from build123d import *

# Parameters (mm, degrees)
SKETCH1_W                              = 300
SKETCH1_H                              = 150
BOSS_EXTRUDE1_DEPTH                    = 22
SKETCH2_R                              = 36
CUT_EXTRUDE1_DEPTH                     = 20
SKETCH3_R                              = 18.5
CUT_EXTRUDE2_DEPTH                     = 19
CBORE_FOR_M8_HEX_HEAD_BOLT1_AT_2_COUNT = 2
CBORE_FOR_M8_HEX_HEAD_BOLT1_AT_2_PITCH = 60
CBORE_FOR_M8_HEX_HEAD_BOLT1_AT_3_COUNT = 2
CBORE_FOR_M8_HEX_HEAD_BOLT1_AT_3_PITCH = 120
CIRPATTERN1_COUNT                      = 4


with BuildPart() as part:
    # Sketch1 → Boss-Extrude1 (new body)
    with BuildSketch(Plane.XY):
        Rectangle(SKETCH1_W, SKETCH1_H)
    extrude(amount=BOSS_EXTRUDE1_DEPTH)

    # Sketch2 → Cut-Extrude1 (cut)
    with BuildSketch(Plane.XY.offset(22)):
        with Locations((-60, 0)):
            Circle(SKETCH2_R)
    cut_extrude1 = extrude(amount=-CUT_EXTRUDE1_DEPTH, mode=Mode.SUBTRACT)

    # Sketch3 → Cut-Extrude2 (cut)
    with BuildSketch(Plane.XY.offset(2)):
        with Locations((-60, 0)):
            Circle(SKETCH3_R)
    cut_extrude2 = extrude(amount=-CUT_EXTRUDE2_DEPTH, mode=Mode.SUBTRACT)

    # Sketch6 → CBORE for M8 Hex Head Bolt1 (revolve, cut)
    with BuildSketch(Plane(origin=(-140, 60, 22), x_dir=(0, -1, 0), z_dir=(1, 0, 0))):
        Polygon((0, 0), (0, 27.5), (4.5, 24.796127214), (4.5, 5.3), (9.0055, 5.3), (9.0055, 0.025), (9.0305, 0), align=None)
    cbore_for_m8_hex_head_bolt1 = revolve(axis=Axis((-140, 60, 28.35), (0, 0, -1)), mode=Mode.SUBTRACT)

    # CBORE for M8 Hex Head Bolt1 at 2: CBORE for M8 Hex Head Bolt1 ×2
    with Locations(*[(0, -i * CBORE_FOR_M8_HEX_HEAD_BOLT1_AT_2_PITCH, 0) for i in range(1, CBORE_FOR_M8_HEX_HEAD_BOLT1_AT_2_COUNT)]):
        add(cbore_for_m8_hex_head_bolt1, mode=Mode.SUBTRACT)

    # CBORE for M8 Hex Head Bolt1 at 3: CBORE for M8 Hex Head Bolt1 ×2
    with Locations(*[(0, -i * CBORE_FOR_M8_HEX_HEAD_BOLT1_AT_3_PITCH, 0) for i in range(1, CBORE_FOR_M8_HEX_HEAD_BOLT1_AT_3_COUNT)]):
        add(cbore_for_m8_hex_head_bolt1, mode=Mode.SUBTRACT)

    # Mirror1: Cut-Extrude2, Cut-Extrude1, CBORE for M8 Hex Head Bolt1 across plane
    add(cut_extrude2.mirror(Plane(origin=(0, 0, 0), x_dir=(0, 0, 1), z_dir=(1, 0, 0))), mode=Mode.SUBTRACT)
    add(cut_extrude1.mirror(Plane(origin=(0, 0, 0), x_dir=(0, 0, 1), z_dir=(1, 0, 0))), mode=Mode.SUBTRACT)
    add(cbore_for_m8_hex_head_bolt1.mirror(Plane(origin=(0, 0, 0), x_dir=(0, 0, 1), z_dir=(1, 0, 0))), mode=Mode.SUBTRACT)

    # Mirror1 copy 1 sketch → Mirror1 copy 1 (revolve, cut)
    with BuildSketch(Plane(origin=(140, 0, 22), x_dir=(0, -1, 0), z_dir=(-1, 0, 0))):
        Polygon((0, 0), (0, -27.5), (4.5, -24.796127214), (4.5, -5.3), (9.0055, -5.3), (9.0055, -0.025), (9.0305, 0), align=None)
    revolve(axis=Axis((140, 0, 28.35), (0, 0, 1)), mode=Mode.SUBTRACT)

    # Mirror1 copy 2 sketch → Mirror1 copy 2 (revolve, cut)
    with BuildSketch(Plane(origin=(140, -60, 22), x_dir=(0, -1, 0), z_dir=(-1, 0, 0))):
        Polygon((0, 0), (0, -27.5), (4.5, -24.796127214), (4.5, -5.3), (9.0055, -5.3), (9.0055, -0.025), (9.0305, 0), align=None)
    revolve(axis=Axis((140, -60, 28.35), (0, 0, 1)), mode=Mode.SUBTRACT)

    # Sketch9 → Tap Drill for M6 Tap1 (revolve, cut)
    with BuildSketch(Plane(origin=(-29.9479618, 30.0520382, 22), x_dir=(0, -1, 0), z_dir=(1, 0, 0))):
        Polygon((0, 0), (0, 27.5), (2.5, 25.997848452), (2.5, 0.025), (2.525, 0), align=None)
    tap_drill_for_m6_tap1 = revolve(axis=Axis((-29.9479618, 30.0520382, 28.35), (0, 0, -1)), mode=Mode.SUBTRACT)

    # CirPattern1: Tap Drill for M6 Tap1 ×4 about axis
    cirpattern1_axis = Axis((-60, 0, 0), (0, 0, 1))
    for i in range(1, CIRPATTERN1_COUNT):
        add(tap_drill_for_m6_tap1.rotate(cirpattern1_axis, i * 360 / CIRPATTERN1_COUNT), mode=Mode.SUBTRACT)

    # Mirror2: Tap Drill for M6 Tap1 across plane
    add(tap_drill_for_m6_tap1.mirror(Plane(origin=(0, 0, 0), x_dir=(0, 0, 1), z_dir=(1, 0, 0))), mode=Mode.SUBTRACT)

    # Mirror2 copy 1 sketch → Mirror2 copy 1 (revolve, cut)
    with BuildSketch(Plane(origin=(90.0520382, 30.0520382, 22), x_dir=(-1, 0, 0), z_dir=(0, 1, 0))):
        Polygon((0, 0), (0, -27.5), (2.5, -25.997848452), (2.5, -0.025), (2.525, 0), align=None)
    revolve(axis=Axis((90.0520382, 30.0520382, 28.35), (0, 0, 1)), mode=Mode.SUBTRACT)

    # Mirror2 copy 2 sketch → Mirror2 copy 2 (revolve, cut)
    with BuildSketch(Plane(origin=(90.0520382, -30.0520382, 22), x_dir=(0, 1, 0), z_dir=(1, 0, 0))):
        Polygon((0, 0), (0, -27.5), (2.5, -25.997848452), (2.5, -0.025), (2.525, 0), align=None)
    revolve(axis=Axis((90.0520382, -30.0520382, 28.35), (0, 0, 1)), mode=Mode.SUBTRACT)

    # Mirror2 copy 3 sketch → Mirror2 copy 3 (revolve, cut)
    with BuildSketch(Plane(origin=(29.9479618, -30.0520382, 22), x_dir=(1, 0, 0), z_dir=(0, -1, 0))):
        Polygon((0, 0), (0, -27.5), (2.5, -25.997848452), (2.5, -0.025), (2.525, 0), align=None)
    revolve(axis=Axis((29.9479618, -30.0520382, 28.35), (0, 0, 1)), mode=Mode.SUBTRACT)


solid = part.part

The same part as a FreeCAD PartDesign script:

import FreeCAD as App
import Part
import Sketcher
Q = App.Units.Quantity

doc = App.newDocument("Part")
body = doc.addObject("PartDesign::Body", "Body")

sketch1 = body.newObject("Sketcher::SketchObject", "Sketch")
sketch1.AttachmentSupport = (doc.getObject("XY_Plane"), [""])
sketch1.MapMode = "FlatFace"
sketch1.addGeometry(Part.LineSegment(App.Vector(-150, 75, 0), App.Vector(-150, -75, 0)), False)
sketch1.addGeometry(Part.LineSegment(App.Vector(-150, -75, 0), App.Vector(150, -75, 0)), False)
sketch1.addGeometry(Part.LineSegment(App.Vector(150, -75, 0), App.Vector(150, 75, 0)), False)
sketch1.addGeometry(Part.LineSegment(App.Vector(150, 75, 0), App.Vector(-150, 75, 0)), False)
sketch1.addConstraint(Sketcher.Constraint("Coincident", 0, 2, 1, 1))
sketch1.addConstraint(Sketcher.Constraint("Coincident", 1, 2, 2, 1))
sketch1.addConstraint(Sketcher.Constraint("Coincident", 2, 2, 3, 1))
sketch1.addConstraint(Sketcher.Constraint("Coincident", 3, 2, 0, 1))
sketch1.addConstraint(Sketcher.Constraint("Vertical", 0))
sketch1.addConstraint(Sketcher.Constraint("Horizontal", 1))
sketch1.addConstraint(Sketcher.Constraint("Vertical", 2))
sketch1.addConstraint(Sketcher.Constraint("Horizontal", 3))
sketch1.addConstraint(Sketcher.Constraint("Symmetric", 0, 2, 2, 2, -1, 1))
sketch1.addConstraint(Sketcher.Constraint("DistanceX", 1, 1, 1, 2, 300.0))
sketch1.addConstraint(Sketcher.Constraint("DistanceY", 0, 2, 0, 1, 150.0))
pad1 = body.newObject("PartDesign::Pad", "Pad")
pad1.Profile = sketch1
pad1.Length = 22

sketch2 = body.newObject("Sketcher::SketchObject", "Sketch001")
sketch2.AttachmentSupport = (doc.getObject("XY_Plane"), [""])
sketch2.MapMode = "FlatFace"
sketch2.AttachmentOffset = App.Placement(App.Vector(0, 0, 22), App.Rotation())
sketch2.addGeometry(Part.Circle(App.Vector(-60, 0, 0), App.Vector(0, 0, 1), 36), False)
sketch2.addConstraint(Sketcher.Constraint("PointOnObject", 0, 3, -1))
sketch2.addConstraint(Sketcher.Constraint("Diameter", 0, 72.0))
sketch2.addConstraint(Sketcher.Constraint("DistanceX", 0, 3, -1, 1, 60.0))
pocket1 = body.newObject("PartDesign::Pocket", "Pocket")
pocket1.Profile = sketch2
pocket1.Length = 20

sketch3 = body.newObject("Sketcher::SketchObject", "Sketch002")
sketch3.AttachmentSupport = (doc.getObject("XY_Plane"), [""])
sketch3.MapMode = "FlatFace"
sketch3.AttachmentOffset = App.Placement(App.Vector(0, 0, 2), App.Rotation())
sketch3.addGeometry(Part.Circle(App.Vector(-60, 0, 0), App.Vector(0, 0, 1), 18.5), False)
sketch3.addConstraint(Sketcher.Constraint("PointOnObject", 0, 3, -1))
sketch3.addConstraint(Sketcher.Constraint("Diameter", 0, 37.0))
sketch3.addConstraint(Sketcher.Constraint("DistanceX", 0, 3, -1, 1, 60.0))
pocket2 = body.newObject("PartDesign::Pocket", "Pocket001")
pocket2.Profile = sketch3
pocket2.Length = 19

sketch4 = body.newObject("Sketcher::SketchObject", "Sketch003")
sketch4.AttachmentSupport = (doc.getObject("YZ_Plane"), [""])
sketch4.MapMode = "FlatFace"
sketch4.AttachmentOffset = App.Placement(App.Vector(0, 0, -140), App.Rotation())
sketch4.addGeometry(Part.LineSegment(App.Vector(60, -5.5, 0), App.Vector(60, 22, 0)), False)
sketch4.addGeometry(Part.LineSegment(App.Vector(60, 22, 0), App.Vector(50.9695, 22, 0)), False)
sketch4.addGeometry(Part.LineSegment(App.Vector(50.9695, 22, 0), App.Vector(50.9945, 21.975, 0)), False)
sketch4.addGeometry(Part.LineSegment(App.Vector(50.9945, 21.975, 0), App.Vector(50.9945, 16.7, 0)), False)
sketch4.addGeometry(Part.LineSegment(App.Vector(50.9945, 16.7, 0), App.Vector(55.5, 16.7, 0)), False)
sketch4.addGeometry(Part.LineSegment(App.Vector(55.5, 16.7, 0), App.Vector(55.5, -2.796127, 0)), False)
sketch4.addGeometry(Part.LineSegment(App.Vector(55.5, -2.796127, 0), App.Vector(60, -5.5, 0)), False)
sketch4.addGeometry(Part.LineSegment(App.Vector(60, 22, 0), App.Vector(60, -5.5, 0)), True)
sketch4.addConstraint(Sketcher.Constraint("Coincident", 0, 2, 1, 1))
sketch4.addConstraint(Sketcher.Constraint("Coincident", 1, 2, 2, 1))
sketch4.addConstraint(Sketcher.Constraint("Coincident", 2, 2, 3, 1))
sketch4.addConstraint(Sketcher.Constraint("Coincident", 3, 2, 4, 1))
sketch4.addConstraint(Sketcher.Constraint("Coincident", 4, 2, 5, 1))
sketch4.addConstraint(Sketcher.Constraint("Coincident", 5, 2, 6, 1))
sketch4.addConstraint(Sketcher.Constraint("Coincident", 6, 2, 0, 1))
sketch4.addConstraint(Sketcher.Constraint("Vertical", 0))
sketch4.addConstraint(Sketcher.Constraint("Horizontal", 1))
sketch4.addConstraint(Sketcher.Constraint("Vertical", 3))
sketch4.addConstraint(Sketcher.Constraint("Horizontal", 4))
sketch4.addConstraint(Sketcher.Constraint("Vertical", 5))
sketch4.addConstraint(Sketcher.Constraint("Vertical", 7))
sketch4.addConstraint(Sketcher.Constraint("Coincident", 7, 1, 0, 2))
sketch4.addConstraint(Sketcher.Constraint("Equal", 0, 7))
sketch4.addConstraint(Sketcher.Constraint("Angle", 2, Q("-45 deg")))
sketch4.addConstraint(Sketcher.Constraint("Angle", 6, Q("-31 deg")))
sketch4.addConstraint(Sketcher.Constraint("DistanceY", 0, 1, 0, 2, 27.5))
sketch4.addConstraint(Sketcher.Constraint("DistanceX", -1, 1, 0, 2, 60.0))
sketch4.addConstraint(Sketcher.Constraint("DistanceY", -1, 1, 0, 2, 22.0))
sketch4.addConstraint(Sketcher.Constraint("DistanceY", -1, 1, 3, 2, 16.7))
sketch4.addConstraint(Sketcher.Constraint("DistanceX", -1, 1, 4, 2, 55.5))
sketch4.addConstraint(Sketcher.Constraint("DistanceY", 3, 2, 3, 1, 5.275))
sketch4.addConstraint(Sketcher.Constraint("DistanceX", 1, 2, 1, 1, 9.0305))
groove = body.newObject("PartDesign::Groove", "Groove")
groove.Profile = sketch4
groove.ReferenceAxis = (sketch4, ["Axis0"])
groove.Angle = 360
doc.recompute()

linearpattern = body.newObject("PartDesign::LinearPattern", "LinearPattern")
linearpattern.Originals = [groove]
linearpattern.Direction = (doc.getObject("Y_Axis"), [""])
linearpattern.Mode = "offset"
linearpattern.Offset = 60
linearpattern.Occurrences = 2
linearpattern.Reversed = True
body.Tip = linearpattern
doc.recompute()

linearpattern2 = body.newObject("PartDesign::LinearPattern", "LinearPattern001")
linearpattern2.Originals = [groove]
linearpattern2.Direction = (doc.getObject("Y_Axis"), [""])
linearpattern2.Mode = "offset"
linearpattern2.Offset = 120
linearpattern2.Occurrences = 2
linearpattern2.Reversed = True
body.Tip = linearpattern2
doc.recompute()

mirrored = body.newObject("PartDesign::Mirrored", "Mirrored")
mirrored.Originals = [pocket2, pocket1, groove]
mirrored.MirrorPlane = (doc.getObject("YZ_Plane"), [""])
body.Tip = mirrored

sketch5 = body.newObject("Sketcher::SketchObject", "Sketch004")
sketch5.AttachmentSupport = (doc.getObject("YZ_Plane"), [""])
sketch5.MapMode = "FlatFace"
sketch5.AttachmentOffset = App.Placement(App.Vector(0, 0, 140), App.Rotation())
sketch5.addGeometry(Part.LineSegment(App.Vector(0, 22, 0), App.Vector(0, -5.5, 0)), False)
sketch5.addGeometry(Part.LineSegment(App.Vector(0, -5.5, 0), App.Vector(-4.5, -2.796127, 0)), False)
sketch5.addGeometry(Part.LineSegment(App.Vector(-4.5, -2.796127, 0), App.Vector(-4.5, 16.7, 0)), False)
sketch5.addGeometry(Part.LineSegment(App.Vector(-4.5, 16.7, 0), App.Vector(-9.0055, 16.7, 0)), False)
sketch5.addGeometry(Part.LineSegment(App.Vector(-9.0055, 16.7, 0), App.Vector(-9.0055, 21.975, 0)), False)
sketch5.addGeometry(Part.LineSegment(App.Vector(-9.0055, 21.975, 0), App.Vector(-9.0305, 22, 0)), False)
sketch5.addGeometry(Part.LineSegment(App.Vector(-9.0305, 22, 0), App.Vector(0, 22, 0)), False)
sketch5.addConstraint(Sketcher.Constraint("Coincident", 0, 2, 1, 1))
sketch5.addConstraint(Sketcher.Constraint("Coincident", 1, 2, 2, 1))
sketch5.addConstraint(Sketcher.Constraint("Coincident", 2, 2, 3, 1))
sketch5.addConstraint(Sketcher.Constraint("Coincident", 3, 2, 4, 1))
sketch5.addConstraint(Sketcher.Constraint("Coincident", 4, 2, 5, 1))
sketch5.addConstraint(Sketcher.Constraint("Coincident", 5, 2, 6, 1))
sketch5.addConstraint(Sketcher.Constraint("Coincident", 6, 2, 0, 1))
sketch5.addConstraint(Sketcher.Constraint("Vertical", 0))
sketch5.addConstraint(Sketcher.Constraint("Vertical", 2))
sketch5.addConstraint(Sketcher.Constraint("Horizontal", 3))
sketch5.addConstraint(Sketcher.Constraint("Vertical", 4))
sketch5.addConstraint(Sketcher.Constraint("Horizontal", 6))
sketch5.addConstraint(Sketcher.Constraint("PointOnObject", 0, 2, -2))
sketch5.addConstraint(Sketcher.Constraint("Angle", 1, Q("149 deg")))
sketch5.addConstraint(Sketcher.Constraint("Angle", 5, Q("135 deg")))
sketch5.addConstraint(Sketcher.Constraint("DistanceY", 0, 2, 0, 1, 27.5))
sketch5.addConstraint(Sketcher.Constraint("DistanceY", -1, 1, 5, 2, 22.0))
sketch5.addConstraint(Sketcher.Constraint("DistanceX", 1, 2, -1, 1, 4.5))
sketch5.addConstraint(Sketcher.Constraint("DistanceY", -1, 1, 2, 2, 16.7))
sketch5.addConstraint(Sketcher.Constraint("DistanceY", 4, 1, 4, 2, 5.275))
sketch5.addConstraint(Sketcher.Constraint("DistanceX", 3, 2, 3, 1, 4.5055))
groove2 = body.newObject("PartDesign::Groove", "Groove001")
groove2.Profile = sketch5
groove2.ReferenceAxis = (sketch5, ["V_Axis"])
groove2.Angle = 360

sketch6 = body.newObject("Sketcher::SketchObject", "Sketch005")
sketch6.AttachmentSupport = (doc.getObject("YZ_Plane"), [""])
sketch6.MapMode = "FlatFace"
sketch6.AttachmentOffset = App.Placement(App.Vector(0, 0, 140), App.Rotation())
sketch6.addGeometry(Part.LineSegment(App.Vector(-60, 22, 0), App.Vector(-60, -5.5, 0)), False)
sketch6.addGeometry(Part.LineSegment(App.Vector(-60, -5.5, 0), App.Vector(-64.5, -2.796127, 0)), False)
sketch6.addGeometry(Part.LineSegment(App.Vector(-64.5, -2.796127, 0), App.Vector(-64.5, 16.7, 0)), False)
sketch6.addGeometry(Part.LineSegment(App.Vector(-64.5, 16.7, 0), App.Vector(-69.0055, 16.7, 0)), False)
sketch6.addGeometry(Part.LineSegment(App.Vector(-69.0055, 16.7, 0), App.Vector(-69.0055, 21.975, 0)), False)
sketch6.addGeometry(Part.LineSegment(App.Vector(-69.0055, 21.975, 0), App.Vector(-69.0305, 22, 0)), False)
sketch6.addGeometry(Part.LineSegment(App.Vector(-69.0305, 22, 0), App.Vector(-60, 22, 0)), False)
sketch6.addGeometry(Part.LineSegment(App.Vector(-60, -5.5, 0), App.Vector(-60, 22, 0)), True)
sketch6.addConstraint(Sketcher.Constraint("Coincident", 0, 2, 1, 1))
sketch6.addConstraint(Sketcher.Constraint("Coincident", 1, 2, 2, 1))
sketch6.addConstraint(Sketcher.Constraint("Coincident", 2, 2, 3, 1))
sketch6.addConstraint(Sketcher.Constraint("Coincident", 3, 2, 4, 1))
sketch6.addConstraint(Sketcher.Constraint("Coincident", 4, 2, 5, 1))
sketch6.addConstraint(Sketcher.Constraint("Coincident", 5, 2, 6, 1))
sketch6.addConstraint(Sketcher.Constraint("Coincident", 6, 2, 0, 1))
sketch6.addConstraint(Sketcher.Constraint("Vertical", 0))
sketch6.addConstraint(Sketcher.Constraint("Vertical", 2))
sketch6.addConstraint(Sketcher.Constraint("Horizontal", 3))
sketch6.addConstraint(Sketcher.Constraint("Vertical", 4))
sketch6.addConstraint(Sketcher.Constraint("Horizontal", 6))
sketch6.addConstraint(Sketcher.Constraint("Vertical", 7))
sketch6.addConstraint(Sketcher.Constraint("Coincident", 7, 1, 0, 2))
sketch6.addConstraint(Sketcher.Constraint("Horizontal", 5, 2, 7, 2))
sketch6.addConstraint(Sketcher.Constraint("Angle", 1, Q("149 deg")))
sketch6.addConstraint(Sketcher.Constraint("Angle", 5, Q("135 deg")))
sketch6.addConstraint(Sketcher.Constraint("DistanceY", 0, 2, 0, 1, 27.5))
sketch6.addConstraint(Sketcher.Constraint("DistanceX", 0, 2, -1, 1, 60.0))
sketch6.addConstraint(Sketcher.Constraint("DistanceY", -1, 1, 5, 2, 22.0))
sketch6.addConstraint(Sketcher.Constraint("DistanceX", 1, 2, -1, 1, 64.5))
sketch6.addConstraint(Sketcher.Constraint("DistanceY", -1, 1, 2, 2, 16.7))
sketch6.addConstraint(Sketcher.Constraint("DistanceY", 4, 1, 4, 2, 5.275))
sketch6.addConstraint(Sketcher.Constraint("DistanceX", 3, 2, 3, 1, 4.5055))
groove3 = body.newObject("PartDesign::Groove", "Groove002")
groove3.Profile = sketch6
groove3.ReferenceAxis = (sketch6, ["Axis0"])
groove3.Angle = 360

sketch7 = body.newObject("Sketcher::SketchObject", "Sketch006")
sketch7.AttachmentSupport = (doc.getObject("YZ_Plane"), [""])
sketch7.MapMode = "FlatFace"
sketch7.AttachmentOffset = App.Placement(App.Vector(0, 0, -29.947962), App.Rotation())
sketch7.addGeometry(Part.LineSegment(App.Vector(30.052038, -5.5, 0), App.Vector(30.052038, 22, 0)), False)
sketch7.addGeometry(Part.LineSegment(App.Vector(30.052038, 22, 0), App.Vector(27.527038, 22, 0)), False)
sketch7.addGeometry(Part.LineSegment(App.Vector(27.527038, 22, 0), App.Vector(27.552038, 21.975, 0)), False)
sketch7.addGeometry(Part.LineSegment(App.Vector(27.552038, 21.975, 0), App.Vector(27.552038, -3.997848, 0)), False)
sketch7.addGeometry(Part.LineSegment(App.Vector(27.552038, -3.997848, 0), App.Vector(30.052038, -5.5, 0)), False)
sketch7.addGeometry(Part.LineSegment(App.Vector(30.052038, 22, 0), App.Vector(30.052038, -5.5, 0)), True)
sketch7.addConstraint(Sketcher.Constraint("Coincident", 0, 2, 1, 1))
sketch7.addConstraint(Sketcher.Constraint("Coincident", 1, 2, 2, 1))
sketch7.addConstraint(Sketcher.Constraint("Coincident", 2, 2, 3, 1))
sketch7.addConstraint(Sketcher.Constraint("Coincident", 3, 2, 4, 1))
sketch7.addConstraint(Sketcher.Constraint("Coincident", 4, 2, 0, 1))
sketch7.addConstraint(Sketcher.Constraint("Vertical", 0))
sketch7.addConstraint(Sketcher.Constraint("Horizontal", 1))
sketch7.addConstraint(Sketcher.Constraint("Vertical", 3))
sketch7.addConstraint(Sketcher.Constraint("Vertical", 5))
sketch7.addConstraint(Sketcher.Constraint("Coincident", 5, 1, 0, 2))
sketch7.addConstraint(Sketcher.Constraint("Equal", 0, 5))
sketch7.addConstraint(Sketcher.Constraint("Angle", 2, Q("-45 deg")))
sketch7.addConstraint(Sketcher.Constraint("Angle", 4, Q("-31 deg")))
sketch7.addConstraint(Sketcher.Constraint("DistanceY", 0, 1, 0, 2, 27.5))
sketch7.addConstraint(Sketcher.Constraint("DistanceY", -1, 1, 0, 2, 22.0))
sketch7.addConstraint(Sketcher.Constraint("DistanceX", 2, 2, 0, 2, 2.5))
sketch7.addConstraint(Sketcher.Constraint("DistanceX", 1, 2, 1, 1, 2.525))
sketch7.addConstraint(Sketcher.Constraint("DistanceX", -1, 1, 0, 2, 30.052038))
groove4 = body.newObject("PartDesign::Groove", "Groove003")
groove4.Profile = sketch7
groove4.ReferenceAxis = (sketch7, ["Axis0"])
groove4.Angle = 360
doc.recompute()

datumline = body.newObject("PartDesign::Line", "DatumLine")
datumline.Placement = App.Placement(App.Vector(-60, 0, 0), App.Rotation(App.Vector(0, 0, 1), App.Vector(0, 0, 1)))
polarpattern = body.newObject("PartDesign::PolarPattern", "PolarPattern")
polarpattern.Originals = [groove4]
polarpattern.Axis = (datumline, [""])
polarpattern.Angle = 360
polarpattern.Occurrences = 4
body.Tip = polarpattern
doc.recompute()

mirrored2 = body.newObject("PartDesign::Mirrored", "Mirrored001")
mirrored2.Originals = [groove4]
mirrored2.MirrorPlane = (doc.getObject("YZ_Plane"), [""])
body.Tip = mirrored2

sketch8 = body.newObject("Sketcher::SketchObject", "Sketch007")
sketch8.AttachmentSupport = (doc.getObject("XZ_Plane"), [""])
sketch8.MapMode = "FlatFace"
sketch8.AttachmentOffset = App.Placement(App.Vector(0, 0, -30.052038), App.Rotation())
sketch8.addGeometry(Part.LineSegment(App.Vector(90.052038, 22, 0), App.Vector(90.052038, -5.5, 0)), False)
sketch8.addGeometry(Part.LineSegment(App.Vector(90.052038, -5.5, 0), App.Vector(87.552038, -3.997848, 0)), False)
sketch8.addGeometry(Part.LineSegment(App.Vector(87.552038, -3.997848, 0), App.Vector(87.552038, 21.975, 0)), False)
sketch8.addGeometry(Part.LineSegment(App.Vector(87.552038, 21.975, 0), App.Vector(87.527038, 22, 0)), False)
sketch8.addGeometry(Part.LineSegment(App.Vector(87.527038, 22, 0), App.Vector(90.052038, 22, 0)), False)
sketch8.addGeometry(Part.LineSegment(App.Vector(90.052038, -5.5, 0), App.Vector(90.052038, 22, 0)), True)
sketch8.addConstraint(Sketcher.Constraint("Coincident", 0, 2, 1, 1))
sketch8.addConstraint(Sketcher.Constraint("Coincident", 1, 2, 2, 1))
sketch8.addConstraint(Sketcher.Constraint("Coincident", 2, 2, 3, 1))
sketch8.addConstraint(Sketcher.Constraint("Coincident", 3, 2, 4, 1))
sketch8.addConstraint(Sketcher.Constraint("Coincident", 4, 2, 0, 1))
sketch8.addConstraint(Sketcher.Constraint("Vertical", 0))
sketch8.addConstraint(Sketcher.Constraint("Vertical", 2))
sketch8.addConstraint(Sketcher.Constraint("Horizontal", 4))
sketch8.addConstraint(Sketcher.Constraint("Vertical", 5))
sketch8.addConstraint(Sketcher.Constraint("Coincident", 5, 1, 0, 2))
sketch8.addConstraint(Sketcher.Constraint("Horizontal", 3, 2, 5, 2))
sketch8.addConstraint(Sketcher.Constraint("Angle", 1, Q("149 deg")))
sketch8.addConstraint(Sketcher.Constraint("Angle", 3, Q("135 deg")))
sketch8.addConstraint(Sketcher.Constraint("DistanceY", 0, 2, 0, 1, 27.5))
sketch8.addConstraint(Sketcher.Constraint("DistanceY", -1, 1, 3, 2, 22.0))
sketch8.addConstraint(Sketcher.Constraint("DistanceX", 1, 2, 0, 2, 2.5))
sketch8.addConstraint(Sketcher.Constraint("DistanceX", 4, 1, 4, 2, 2.525))
sketch8.addConstraint(Sketcher.Constraint("DistanceX", -1, 1, 0, 2, 90.052038))
groove5 = body.newObject("PartDesign::Groove", "Groove004")
groove5.Profile = sketch8
groove5.ReferenceAxis = (sketch8, ["Axis0"])
groove5.Angle = 360

sketch9 = body.newObject("Sketcher::SketchObject", "Sketch008")
sketch9.AttachmentSupport = (doc.getObject("YZ_Plane"), [""])
sketch9.MapMode = "FlatFace"
sketch9.AttachmentOffset = App.Placement(App.Vector(0, 0, 90.052038), App.Rotation())
sketch9.addGeometry(Part.LineSegment(App.Vector(-30.052038, 22, 0), App.Vector(-30.052038, -5.5, 0)), False)
sketch9.addGeometry(Part.LineSegment(App.Vector(-30.052038, -5.5, 0), App.Vector(-27.552038, -3.997848, 0)), False)
sketch9.addGeometry(Part.LineSegment(App.Vector(-27.552038, -3.997848, 0), App.Vector(-27.552038, 21.975, 0)), False)
sketch9.addGeometry(Part.LineSegment(App.Vector(-27.552038, 21.975, 0), App.Vector(-27.527038, 22, 0)), False)
sketch9.addGeometry(Part.LineSegment(App.Vector(-27.527038, 22, 0), App.Vector(-30.052038, 22, 0)), False)
sketch9.addGeometry(Part.LineSegment(App.Vector(-30.052038, -5.5, 0), App.Vector(-30.052038, 22, 0)), True)
sketch9.addConstraint(Sketcher.Constraint("Coincident", 0, 2, 1, 1))
sketch9.addConstraint(Sketcher.Constraint("Coincident", 1, 2, 2, 1))
sketch9.addConstraint(Sketcher.Constraint("Coincident", 2, 2, 3, 1))
sketch9.addConstraint(Sketcher.Constraint("Coincident", 3, 2, 4, 1))
sketch9.addConstraint(Sketcher.Constraint("Coincident", 4, 2, 0, 1))
sketch9.addConstraint(Sketcher.Constraint("Vertical", 0))
sketch9.addConstraint(Sketcher.Constraint("Vertical", 2))
sketch9.addConstraint(Sketcher.Constraint("Horizontal", 4))
sketch9.addConstraint(Sketcher.Constraint("Vertical", 5))
sketch9.addConstraint(Sketcher.Constraint("Coincident", 5, 1, 0, 2))
sketch9.addConstraint(Sketcher.Constraint("Horizontal", 3, 2, 5, 2))
sketch9.addConstraint(Sketcher.Constraint("Angle", 1, Q("31 deg")))
sketch9.addConstraint(Sketcher.Constraint("Angle", 3, Q("45 deg")))
sketch9.addConstraint(Sketcher.Constraint("DistanceY", 0, 2, 0, 1, 27.5))
sketch9.addConstraint(Sketcher.Constraint("DistanceY", -1, 1, 3, 2, 22.0))
sketch9.addConstraint(Sketcher.Constraint("DistanceX", 0, 2, 1, 2, 2.5))
sketch9.addConstraint(Sketcher.Constraint("DistanceX", 4, 2, 4, 1, 2.525))
sketch9.addConstraint(Sketcher.Constraint("DistanceX", 0, 2, -1, 1, 30.052038))
groove6 = body.newObject("PartDesign::Groove", "Groove005")
groove6.Profile = sketch9
groove6.ReferenceAxis = (sketch9, ["Axis0"])
groove6.Angle = 360

sketch10 = body.newObject("Sketcher::SketchObject", "Sketch009")
sketch10.AttachmentSupport = (doc.getObject("XZ_Plane"), [""])
sketch10.MapMode = "FlatFace"
sketch10.AttachmentOffset = App.Placement(App.Vector(0, 0, 30.052038), App.Rotation())
sketch10.addGeometry(Part.LineSegment(App.Vector(29.947962, 22, 0), App.Vector(29.947962, -5.5, 0)), False)
sketch10.addGeometry(Part.LineSegment(App.Vector(29.947962, -5.5, 0), App.Vector(32.447962, -3.997848, 0)), False)
sketch10.addGeometry(Part.LineSegment(App.Vector(32.447962, -3.997848, 0), App.Vector(32.447962, 21.975, 0)), False)
sketch10.addGeometry(Part.LineSegment(App.Vector(32.447962, 21.975, 0), App.Vector(32.472962, 22, 0)), False)
sketch10.addGeometry(Part.LineSegment(App.Vector(32.472962, 22, 0), App.Vector(29.947962, 22, 0)), False)
sketch10.addGeometry(Part.LineSegment(App.Vector(29.947962, -5.5, 0), App.Vector(29.947962, 22, 0)), True)
sketch10.addConstraint(Sketcher.Constraint("Coincident", 0, 2, 1, 1))
sketch10.addConstraint(Sketcher.Constraint("Coincident", 1, 2, 2, 1))
sketch10.addConstraint(Sketcher.Constraint("Coincident", 2, 2, 3, 1))
sketch10.addConstraint(Sketcher.Constraint("Coincident", 3, 2, 4, 1))
sketch10.addConstraint(Sketcher.Constraint("Coincident", 4, 2, 0, 1))
sketch10.addConstraint(Sketcher.Constraint("Vertical", 0))
sketch10.addConstraint(Sketcher.Constraint("Vertical", 2))
sketch10.addConstraint(Sketcher.Constraint("Horizontal", 4))
sketch10.addConstraint(Sketcher.Constraint("Vertical", 5))
sketch10.addConstraint(Sketcher.Constraint("Coincident", 5, 1, 0, 2))
sketch10.addConstraint(Sketcher.Constraint("Horizontal", 3, 2, 5, 2))
sketch10.addConstraint(Sketcher.Constraint("Angle", 1, Q("31 deg")))
sketch10.addConstraint(Sketcher.Constraint("Angle", 3, Q("45 deg")))
sketch10.addConstraint(Sketcher.Constraint("DistanceY", 0, 2, 0, 1, 27.5))
sketch10.addConstraint(Sketcher.Constraint("DistanceY", -1, 1, 3, 2, 22.0))
sketch10.addConstraint(Sketcher.Constraint("DistanceX", 0, 2, 1, 2, 2.5))
sketch10.addConstraint(Sketcher.Constraint("DistanceX", 4, 2, 4, 1, 2.525))
sketch10.addConstraint(Sketcher.Constraint("DistanceX", -1, 1, 0, 2, 29.947962))
groove7 = body.newObject("PartDesign::Groove", "Groove006")
groove7.Profile = sketch10
groove7.ReferenceAxis = (sketch10, ["Axis0"])
groove7.Angle = 360

doc.recompute()
